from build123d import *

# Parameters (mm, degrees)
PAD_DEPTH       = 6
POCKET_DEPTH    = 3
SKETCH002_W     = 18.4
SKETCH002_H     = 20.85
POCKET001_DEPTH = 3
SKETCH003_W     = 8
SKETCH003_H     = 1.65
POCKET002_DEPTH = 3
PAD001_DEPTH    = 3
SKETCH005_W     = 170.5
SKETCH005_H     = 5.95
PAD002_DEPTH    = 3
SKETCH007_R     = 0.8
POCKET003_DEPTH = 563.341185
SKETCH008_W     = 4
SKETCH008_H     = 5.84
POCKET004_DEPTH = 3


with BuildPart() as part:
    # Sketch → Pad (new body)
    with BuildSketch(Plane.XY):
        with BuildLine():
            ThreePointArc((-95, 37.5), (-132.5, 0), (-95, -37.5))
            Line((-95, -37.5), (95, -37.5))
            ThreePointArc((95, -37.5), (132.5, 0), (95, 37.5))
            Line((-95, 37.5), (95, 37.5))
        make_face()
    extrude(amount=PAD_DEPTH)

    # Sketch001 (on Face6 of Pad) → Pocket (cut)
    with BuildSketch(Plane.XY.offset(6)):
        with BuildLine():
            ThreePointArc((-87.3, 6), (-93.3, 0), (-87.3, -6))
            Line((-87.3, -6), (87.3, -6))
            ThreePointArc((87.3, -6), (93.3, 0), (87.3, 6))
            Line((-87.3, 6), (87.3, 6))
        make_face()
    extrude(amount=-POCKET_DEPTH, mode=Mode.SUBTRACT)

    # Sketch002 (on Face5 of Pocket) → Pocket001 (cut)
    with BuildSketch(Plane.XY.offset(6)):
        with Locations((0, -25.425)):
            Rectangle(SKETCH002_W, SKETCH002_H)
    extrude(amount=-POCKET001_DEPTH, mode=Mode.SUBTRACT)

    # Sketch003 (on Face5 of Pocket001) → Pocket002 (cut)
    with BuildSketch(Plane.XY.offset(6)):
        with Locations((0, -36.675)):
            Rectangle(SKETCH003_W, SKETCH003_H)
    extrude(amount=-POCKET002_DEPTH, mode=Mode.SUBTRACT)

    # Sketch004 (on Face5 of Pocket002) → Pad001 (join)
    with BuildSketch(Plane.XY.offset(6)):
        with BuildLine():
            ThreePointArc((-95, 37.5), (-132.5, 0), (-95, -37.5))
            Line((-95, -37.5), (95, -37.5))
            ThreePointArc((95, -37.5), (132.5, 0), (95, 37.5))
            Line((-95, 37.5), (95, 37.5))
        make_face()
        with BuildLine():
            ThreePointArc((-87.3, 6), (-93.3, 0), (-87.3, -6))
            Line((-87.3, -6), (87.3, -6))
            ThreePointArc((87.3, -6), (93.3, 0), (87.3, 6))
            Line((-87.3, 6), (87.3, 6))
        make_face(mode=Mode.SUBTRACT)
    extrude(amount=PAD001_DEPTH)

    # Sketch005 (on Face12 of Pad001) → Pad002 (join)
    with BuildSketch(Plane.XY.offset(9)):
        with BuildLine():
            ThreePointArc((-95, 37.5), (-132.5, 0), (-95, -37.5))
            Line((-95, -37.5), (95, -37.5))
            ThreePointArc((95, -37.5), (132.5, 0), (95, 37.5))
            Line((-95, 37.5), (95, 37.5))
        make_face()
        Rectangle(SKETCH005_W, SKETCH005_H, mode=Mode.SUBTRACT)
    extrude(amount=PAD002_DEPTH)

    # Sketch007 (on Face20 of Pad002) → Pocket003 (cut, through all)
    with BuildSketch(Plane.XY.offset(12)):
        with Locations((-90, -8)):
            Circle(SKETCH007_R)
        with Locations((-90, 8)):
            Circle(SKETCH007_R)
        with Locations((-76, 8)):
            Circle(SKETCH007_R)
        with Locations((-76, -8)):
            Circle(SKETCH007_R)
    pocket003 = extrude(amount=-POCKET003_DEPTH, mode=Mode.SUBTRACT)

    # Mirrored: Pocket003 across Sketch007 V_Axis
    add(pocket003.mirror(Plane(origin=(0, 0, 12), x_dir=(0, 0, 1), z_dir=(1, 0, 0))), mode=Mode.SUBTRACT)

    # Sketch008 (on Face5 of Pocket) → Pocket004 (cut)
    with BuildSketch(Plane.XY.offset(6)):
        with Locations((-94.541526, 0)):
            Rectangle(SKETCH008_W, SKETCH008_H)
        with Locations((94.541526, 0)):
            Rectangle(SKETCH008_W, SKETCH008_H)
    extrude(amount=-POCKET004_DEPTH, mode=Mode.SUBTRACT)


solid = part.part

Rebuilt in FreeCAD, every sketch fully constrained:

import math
import FreeCAD as App
import Part
import Sketcher
from FreeCAD import Vector
Q = App.Units.Quantity

doc = App.newDocument("Part")
body = doc.addObject("PartDesign::Body", "Body")

# Sketch on XY plane
sketch1 = body.newObject("Sketcher::SketchObject", "Sketch")
sketch1.AttachmentSupport = (doc.getObject("XY_Plane"), [""])
sketch1.MapMode = "FlatFace"
sketch1.addGeometry(Part.ArcOfCircle(Part.Circle(Vector(-95, 0, 0), Vector(0, 0, 1), 38), math.radians(90), math.radians(270)), False)
sketch1.addGeometry(Part.LineSegment(Vector(-95, -38, 0), Vector(95, -38, 0)), False)
sketch1.addGeometry(Part.ArcOfCircle(Part.Circle(Vector(95, 0, 0), Vector(0, 0, 1), 38), math.radians(-90), math.radians(90)), False)
sketch1.addGeometry(Part.LineSegment(Vector(95, 38, 0), Vector(-95, 38, 0)), False)
sketch1.addConstraint(Sketcher.Constraint("Tangent", 0, 2, 1, 1))
sketch1.addConstraint(Sketcher.Constraint("Tangent", 1, 2, 2, 1))
sketch1.addConstraint(Sketcher.Constraint("Tangent", 2, 2, 3, 1))
sketch1.addConstraint(Sketcher.Constraint("Tangent", 3, 2, 0, 1))
sketch1.addConstraint(Sketcher.Constraint("Horizontal", 1))
sketch1.addConstraint(Sketcher.Constraint("Horizontal", 3))
sketch1.addConstraint(Sketcher.Constraint("Symmetric", 0, 3, 2, 3, -1, 1))
sketch1.addConstraint(Sketcher.Constraint("Radius", 0, Q("37.5 mm")))
sketch1.addConstraint(Sketcher.Constraint("DistanceX", 1, 1, 1, 2, Q("190 mm")))
pad1 = body.newObject("PartDesign::Pad", "Pad")
pad1.Profile = sketch1
pad1.Length = 6

# Sketch on XY plane
sketch2 = body.newObject("Sketcher::SketchObject", "Sketch001")
sketch2.AttachmentSupport = (doc.getObject("XY_Plane"), [""])
sketch2.MapMode = "FlatFace"
sketch2.AttachmentOffset = App.Placement(Vector(0, 0, 6), App.Rotation())
sketch2.addGeometry(Part.ArcOfCircle(Part.Circle(Vector(-87, 0, 0), Vector(0, 0, 1), 6), math.radians(90), math.radians(270)), False)
sketch2.addGeometry(Part.LineSegment(Vector(-87, -6, 0), Vector(87, -6, 0)), False)
sketch2.addGeometry(Part.ArcOfCircle(Part.Circle(Vector(87, 0, 0), Vector(0, 0, 1), 6), math.radians(-90), math.radians(90)), False)
sketch2.addGeometry(Part.LineSegment(Vector(87, 6, 0), Vector(-87, 6, 0)), False)
sketch2.addConstraint(Sketcher.Constraint("Tangent", 0, 2, 1, 1))
sketch2.addConstraint(Sketcher.Constraint("Tangent", 1, 2, 2, 1))
sketch2.addConstraint(Sketcher.Constraint("Tangent", 2, 2, 3, 1))
sketch2.addConstraint(Sketcher.Constraint("Tangent", 3, 2, 0, 1))
sketch2.addConstraint(Sketcher.Constraint("Horizontal", 1))
sketch2.addConstraint(Sketcher.Constraint("Horizontal", 3))
sketch2.addConstraint(Sketcher.Constraint("Symmetric", 0, 3, 2, 3, -1, 1))
sketch2.addConstraint(Sketcher.Constraint("Radius", 0, Q("6 mm")))
sketch2.addConstraint(Sketcher.Constraint("DistanceX", 1, 1, 1, 2, Q("174.6 mm")))
pocket1 = body.newObject("PartDesign::Pocket", "Pocket")
pocket1.Profile = sketch2
pocket1.Length = 3

# Sketch on XY plane
sketch3 = body.newObject("Sketcher::SketchObject", "Sketch002")
sketch3.AttachmentSupport = (doc.getObject("XY_Plane"), [""])
sketch3.MapMode = "FlatFace"
sketch3.AttachmentOffset = App.Placement(Vector(0, 0, 6), App.Rotation())
sketch3.addGeometry(Part.LineSegment(Vector(-9, -15, 0), Vector(-9, -36, 0)), False)
sketch3.addGeometry(Part.LineSegment(Vector(-9, -36, 0), Vector(9, -36, 0)), False)
sketch3.addGeometry(Part.LineSegment(Vector(9, -36, 0), Vector(9, -15, 0)), False)
sketch3.addGeometry(Part.LineSegment(Vector(9, -15, 0), Vector(-9, -15, 0)), False)
sketch3.addConstraint(Sketcher.Constraint("Coincident", 0, 2, 1, 1))
sketch3.addConstraint(Sketcher.Constraint("Coincident", 1, 2, 2, 1))
sketch3.addConstraint(Sketcher.Constraint("Coincident", 2, 2, 3, 1))
sketch3.addConstraint(Sketcher.Constraint("Coincident", 3, 2, 0, 1))
sketch3.addConstraint(Sketcher.Constraint("Vertical", 0))
sketch3.addConstraint(Sketcher.Constraint("Horizontal", 1))
sketch3.addConstraint(Sketcher.Constraint("Vertical", 2))
sketch3.addConstraint(Sketcher.Constraint("Horizontal", 3))
sketch3.addConstraint(Sketcher.Constraint("DistanceX", 1, 1, 1, 2, Q("18.4 mm")))
sketch3.addConstraint(Sketcher.Constraint("DistanceY", 2, 2, -1, 1, Q("15 mm")))
sketch3.addConstraint(Sketcher.Constraint("DistanceY", 0, 2, 0, 1, Q("20.85 mm")))
sketch3.addConstraint(Sketcher.Constraint("DistanceX", 0, 2, -1, 1, Q("9.2 mm")))
pocket2 = body.newObject("PartDesign::Pocket", "Pocket001")
pocket2.Profile = sketch3
pocket2.Length = 3

# Sketch on XY plane
sketch4 = body.newObject("Sketcher::SketchObject", "Sketch003")
sketch4.AttachmentSupport = (doc.getObject("XY_Plane"), [""])
sketch4.MapMode = "FlatFace"
sketch4.AttachmentOffset = App.Placement(Vector(0, 0, 6), App.Rotation())
sketch4.addGeometry(Part.LineSegment(Vector(-4, -35.9, 0), Vector(-4, -37.5, 0)), False)
sketch4.addGeometry(Part.LineSegment(Vector(-4, -37.5, 0), Vector(4, -37.5, 0)), False)
sketch4.addGeometry(Part.LineSegment(Vector(4, -37.5, 0), Vector(4, -35.9, 0)), False)
sketch4.addGeometry(Part.LineSegment(Vector(4, -35.9, 0), Vector(-4, -35.9, 0)), False)
sketch4.addConstraint(Sketcher.Constraint("Coincident", 0, 2, 1, 1))
sketch4.addConstraint(Sketcher.Constraint("Coincident", 1, 2, 2, 1))
sketch4.addConstraint(Sketcher.Constraint("Coincident", 2, 2, 3, 1))
sketch4.addConstraint(Sketcher.Constraint("Coincident", 3, 2, 0, 1))
sketch4.addConstraint(Sketcher.Constraint("Vertical", 0))
sketch4.addConstraint(Sketcher.Constraint("Horizontal", 1))
sketch4.addConstraint(Sketcher.Constraint("Vertical", 2))
sketch4.addConstraint(Sketcher.Constraint("Horizontal", 3))
sketch4.addConstraint(Sketcher.Constraint("DistanceX", 1, 1, 1, 2, Q("8 mm")))
sketch4.addConstraint(Sketcher.Constraint("DistanceX", 0, 2, -1, 1, Q("4 mm")))
sketch4.addConstraint(Sketcher.Constraint("DistanceY", 0, 2, 0, 1, Q("1.65 mm")))
sketch4.addConstraint(Sketcher.Constraint("DistanceY", 0, 2, -1, 1, Q("37.5 mm")))
pocket3 = body.newObject("PartDesign::Pocket", "Pocket002")
pocket3.Profile = sketch4
pocket3.Length = 3

# Sketch on XY plane
sketch5 = body.newObject("Sketcher::SketchObject", "Sketch004")
sketch5.AttachmentSupport = (doc.getObject("XY_Plane"), [""])
sketch5.MapMode = "FlatFace"
sketch5.AttachmentOffset = App.Placement(Vector(0, 0, 6), App.Rotation())
sketch5.addGeometry(Part.ArcOfCircle(Part.Circle(Vector(-95, 0, 0), Vector(0, 0, 1), 38), math.radians(90), math.radians(270)), False)
sketch5.addGeometry(Part.LineSegment(Vector(-95, -38, 0), Vector(95, -38, 0)), False)
sketch5.addGeometry(Part.ArcOfCircle(Part.Circle(Vector(95, 0, 0), Vector(0, 0, 1), 38), math.radians(-90), math.radians(90)), False)
sketch5.addGeometry(Part.LineSegment(Vector(95, 38, 0), Vector(-95, 38, 0)), False)
sketch5.addGeometry(Part.ArcOfCircle(Part.Circle(Vector(-87, 0, 0), Vector(0, 0, 1), 6), math.radians(90), math.radians(270)), False)
sketch5.addGeometry(Part.LineSegment(Vector(-87, 6, 0), Vector(87, 6, 0)), False)
sketch5.addGeometry(Part.ArcOfCircle(Part.Circle(Vector(87, 0, 0), Vector(0, 0, 1), 6), math.radians(-90), math.radians(90)), False)
sketch5.addGeometry(Part.LineSegment(Vector(87, -6, 0), Vector(-87, -6, 0)), False)
sketch5.addConstraint(Sketcher.Constraint("Tangent", 0, 2, 1, 1))
sketch5.addConstraint(Sketcher.Constraint("Tangent", 1, 2, 2, 1))
sketch5.addConstraint(Sketcher.Constraint("Tangent", 2, 2, 3, 1))
sketch5.addConstraint(Sketcher.Constraint("Tangent", 3, 2, 0, 1))
sketch5.addConstraint(Sketcher.Constraint("Tangent", 4, 1, 5, 1))
sketch5.addConstraint(Sketcher.Constraint("Tangent", 5, 2, 6, 2))
sketch5.addConstraint(Sketcher.Constraint("Tangent", 6, 1, 7, 1))
sketch5.addConstraint(Sketcher.Constraint("Tangent", 7, 2, 4, 2))
sketch5.addConstraint(Sketcher.Constraint("Horizontal", 1))
sketch5.addConstraint(Sketcher.Constraint("Horizontal", 3))
sketch5.addConstraint(Sketcher.Constraint("Horizontal", 5))
sketch5.addConstraint(Sketcher.Constraint("Horizontal", 7))
sketch5.addConstraint(Sketcher.Constraint("Symmetric", 0, 3, 2, 3, -1, 1))
sketch5.addConstraint(Sketcher.Constraint("Symmetric", 4, 3, 6, 3, -1, 1))
sketch5.addConstraint(Sketcher.Constraint("Radius", 4, Q("6 mm")))
sketch5.addConstraint(Sketcher.Constraint("Radius", 0, Q("37.5 mm")))
sketch5.addConstraint(Sketcher.Constraint("DistanceX", 1, 1, 1, 2, Q("190 mm")))
sketch5.addConstraint(Sketcher.Constraint("DistanceX", 5, 1, 5, 2, Q("174.6 mm")))
pad2 = body.newObject("PartDesign::Pad", "Pad001")
pad2.Profile = sketch5
pad2.Length = 3

# Sketch on XY plane
sketch6 = body.newObject("Sketcher::SketchObject", "Sketch005")
sketch6.AttachmentSupport = (doc.getObject("XY_Plane"), [""])
sketch6.MapMode = "FlatFace"
sketch6.AttachmentOffset = App.Placement(Vector(0, 0, 9), App.Rotation())
sketch6.addGeometry(Part.ArcOfCircle(Part.Circle(Vector(-95, 0, 0), Vector(0, 0, 1), 38), math.radians(90), math.radians(270)), False)
sketch6.addGeometry(Part.LineSegment(Vector(-95, -38, 0), Vector(95, -38, 0)), False)
sketch6.addGeometry(Part.ArcOfCircle(Part.Circle(Vector(95, 0, 0), Vector(0, 0, 1), 38), math.radians(-90), math.radians(90)), False)
sketch6.addGeometry(Part.LineSegment(Vector(95, 38, 0), Vector(-95, 38, 0)), False)
sketch6.addGeometry(Part.LineSegment(Vector(85, -3, 0), Vector(-85, -3, 0)), False)
sketch6.addGeometry(Part.LineSegment(Vector(-85, -3, 0), Vector(-85, 3, 0)), False)
sketch6.addGeometry(Part.LineSegment(Vector(-85, 3, 0), Vector(85, 3, 0)), False)
sketch6.addGeometry(Part.LineSegment(Vector(85, 3, 0), Vector(85, -3, 0)), False)
sketch6.addConstraint(Sketcher.Constraint("Tangent", 0, 2, 1, 1))
sketch6.addConstraint(Sketcher.Constraint("Tangent", 1, 2, 2, 1))
sketch6.addConstraint(Sketcher.Constraint("Tangent", 2, 2, 3, 1))
sketch6.addConstraint(Sketcher.Constraint("Tangent", 3, 2, 0, 1))
sketch6.addConstraint(Sketcher.Constraint("Coincident", 4, 2, 5, 1))
sketch6.addConstraint(Sketcher.Constraint("Coincident", 5, 2, 6, 1))
sketch6.addConstraint(Sketcher.Constraint("Coincident", 6, 2, 7, 1))
sketch6.addConstraint(Sketcher.Constraint("Coincident", 7, 2, 4, 1))
sketch6.addConstraint(Sketcher.Constraint("Horizontal", 1))
sketch6.addConstraint(Sketcher.Constraint("Horizontal", 3))
sketch6.addConstraint(Sketcher.Constraint("Horizontal", 4))
sketch6.addConstraint(Sketcher.Constraint("Vertical", 5))
sketch6.addConstraint(Sketcher.Constraint("Horizontal", 6))
sketch6.addConstraint(Sketcher.Constraint("Vertical", 7))
sketch6.addConstraint(Sketcher.Constraint("Symmetric", 0, 3, 2, 3, -1, 1))
sketch6.addConstraint(Sketcher.Constraint("Symmetric", 4, 2, 6, 2, -1, 1))
sketch6.addConstraint(Sketcher.Constraint("Radius", 0, Q("37.5 mm")))
sketch6.addConstraint(Sketcher.Constraint("DistanceX", 1, 1, 1, 2, Q("190 mm")))
sketch6.addConstraint(Sketcher.Constraint("DistanceX", 4, 2, 4, 1, Q("170.5 mm")))
sketch6.addConstraint(Sketcher.Constraint("DistanceY", 5, 1, 5, 2, Q("5.95 mm")))
pad3 = body.newObject("PartDesign::Pad", "Pad002")
pad3.Profile = sketch6
pad3.Length = 3

# Sketch on XY plane
sketch7 = body.newObject("Sketcher::SketchObject", "Sketch006")
sketch7.AttachmentSupport = (doc.getObject("XY_Plane"), [""])
sketch7.MapMode = "FlatFace"
sketch7.AttachmentOffset = App.Placement(Vector(0, 0, 12), App.Rotation())
sketch7.addGeometry(Part.Circle(Vector(-90, -8, 0), Vector(0, 0, 1), 0.8), False)
sketch7.addGeometry(Part.Circle(Vector(-90, 8, 0), Vector(0, 0, 1), 0.8), False)
sketch7.addGeometry(Part.Circle(Vector(-76, 8, 0), Vector(0, 0, 1), 0.8), False)
sketch7.addGeometry(Part.Circle(Vector(-76, -8, 0), Vector(0, 0, 1), 0.8), False)
sketch7.addConstraint(Sketcher.Constraint("Equal", 0, 1))
sketch7.addConstraint(Sketcher.Constraint("Equal", 1, 2))
sketch7.addConstraint(Sketcher.Constraint("Equal", 2, 3))
sketch7.addConstraint(Sketcher.Constraint("Symmetric", 0, 3, 1, 3, -1))
sketch7.addConstraint(Sketcher.Constraint("Symmetric", 2, 3, 3, 3, -1))
sketch7.addConstraint(Sketcher.Constraint("Horizontal", 1, 3, 2, 3))
sketch7.addConstraint(Sketcher.Constraint("Diameter", 0, Q("1.6 mm")))
sketch7.addConstraint(Sketcher.Constraint("DistanceX", 0, 3, -1, 1, Q("90 mm")))
sketch7.addConstraint(Sketcher.Constraint("DistanceY", 0, 3, -1, 1, Q("8 mm")))
sketch7.addConstraint(Sketcher.Constraint("DistanceX", 2, 3, -1, 1, Q("76 mm")))
pocket4 = body.newObject("PartDesign::Pocket", "Pocket003")
pocket4.Profile = sketch7
pocket4.Type = "ThroughAll"
doc.recompute()

mirrored = body.newObject("PartDesign::Mirrored", "Mirrored")
mirrored.Originals = [pocket4]
mirrored.MirrorPlane = (doc.getObject("YZ_Plane"), [""])
body.Tip = mirrored

# Sketch on XY plane
sketch8 = body.newObject("Sketcher::SketchObject", "Sketch007")
sketch8.AttachmentSupport = (doc.getObject("XY_Plane"), [""])
sketch8.MapMode = "FlatFace"
sketch8.AttachmentOffset = App.Placement(Vector(0, 0, 6), App.Rotation())
sketch8.addGeometry(Part.LineSegment(Vector(-96.5, 2.9, 0), Vector(-96.5, -2.9, 0)), False)
sketch8.addGeometry(Part.LineSegment(Vector(-96.5, -2.9, 0), Vector(-92.5, -2.9, 0)), False)
sketch8.addGeometry(Part.LineSegment(Vector(-92.5, -2.9, 0), Vector(-92.5, 2.9, 0)), False)
sketch8.addGeometry(Part.LineSegment(Vector(-92.5, 2.9, 0), Vector(-96.5, 2.9, 0)), False)
sketch8.addGeometry(Part.LineSegment(Vector(92.5, 2.9, 0), Vector(92.5, -2.9, 0)), False)
sketch8.addGeometry(Part.LineSegment(Vector(92.5, -2.9, 0), Vector(96.5, -2.9, 0)), False)
sketch8.addGeometry(Part.LineSegment(Vector(96.5, -2.9, 0), Vector(96.5, 2.9, 0)), False)
sketch8.addGeometry(Part.LineSegment(Vector(96.5, 2.9, 0), Vector(92.5, 2.9, 0)), False)
sketch8.addConstraint(Sketcher.Constraint("Coincident", 0, 2, 1, 1))
sketch8.addConstraint(Sketcher.Constraint("Coincident", 1, 2, 2, 1))
sketch8.addConstraint(Sketcher.Constraint("Coincident", 2, 2, 3, 1))
sketch8.addConstraint(Sketcher.Constraint("Coincident", 3, 2, 0, 1))
sketch8.addConstraint(Sketcher.Constraint("Coincident", 4, 2, 5, 1))
sketch8.addConstraint(Sketcher.Constraint("Coincident", 5, 2, 6, 1))
sketch8.addConstraint(Sketcher.Constraint("Coincident", 6, 2, 7, 1))
sketch8.addConstraint(Sketcher.Constraint("Coincident", 7, 2, 4, 1))
sketch8.addConstraint(Sketcher.Constraint("Vertical", 0))
sketch8.addConstraint(Sketcher.Constraint("Horizontal", 1))
sketch8.addConstraint(Sketcher.Constraint("Vertical", 2))
sketch8.addConstraint(Sketcher.Constraint("Horizontal", 3))
sketch8.addConstraint(Sketcher.Constraint("Vertical", 4))
sketch8.addConstraint(Sketcher.Constraint("Horizontal", 5))
sketch8.addConstraint(Sketcher.Constraint("Vertical", 6))
sketch8.addConstraint(Sketcher.Constraint("Horizontal", 7))
sketch8.addConstraint(Sketcher.Constraint("Symmetric", 2, 2, 4, 2, -1, 1))
sketch8.addConstraint(Sketcher.Constraint("Symmetric", 0, 2, 6, 2, -1, 1))
sketch8.addConstraint(Sketcher.Constraint("Horizontal", 1, 2, 4, 2))
sketch8.addConstraint(Sketcher.Constraint("DistanceX", 1, 1, 1, 2, Q("4 mm")))
sketch8.addConstraint(Sketcher.Constraint("DistanceY", 0, 2, 0, 1, Q("5.84 mm")))
sketch8.addConstraint(Sketcher.Constraint("DistanceX", 0, 2, -1, 1, Q("96.541526 mm")))
pocket5 = body.newObject("PartDesign::Pocket", "Pocket004")
pocket5.Profile = sketch8
pocket5.Length = 3

doc.recompute()
